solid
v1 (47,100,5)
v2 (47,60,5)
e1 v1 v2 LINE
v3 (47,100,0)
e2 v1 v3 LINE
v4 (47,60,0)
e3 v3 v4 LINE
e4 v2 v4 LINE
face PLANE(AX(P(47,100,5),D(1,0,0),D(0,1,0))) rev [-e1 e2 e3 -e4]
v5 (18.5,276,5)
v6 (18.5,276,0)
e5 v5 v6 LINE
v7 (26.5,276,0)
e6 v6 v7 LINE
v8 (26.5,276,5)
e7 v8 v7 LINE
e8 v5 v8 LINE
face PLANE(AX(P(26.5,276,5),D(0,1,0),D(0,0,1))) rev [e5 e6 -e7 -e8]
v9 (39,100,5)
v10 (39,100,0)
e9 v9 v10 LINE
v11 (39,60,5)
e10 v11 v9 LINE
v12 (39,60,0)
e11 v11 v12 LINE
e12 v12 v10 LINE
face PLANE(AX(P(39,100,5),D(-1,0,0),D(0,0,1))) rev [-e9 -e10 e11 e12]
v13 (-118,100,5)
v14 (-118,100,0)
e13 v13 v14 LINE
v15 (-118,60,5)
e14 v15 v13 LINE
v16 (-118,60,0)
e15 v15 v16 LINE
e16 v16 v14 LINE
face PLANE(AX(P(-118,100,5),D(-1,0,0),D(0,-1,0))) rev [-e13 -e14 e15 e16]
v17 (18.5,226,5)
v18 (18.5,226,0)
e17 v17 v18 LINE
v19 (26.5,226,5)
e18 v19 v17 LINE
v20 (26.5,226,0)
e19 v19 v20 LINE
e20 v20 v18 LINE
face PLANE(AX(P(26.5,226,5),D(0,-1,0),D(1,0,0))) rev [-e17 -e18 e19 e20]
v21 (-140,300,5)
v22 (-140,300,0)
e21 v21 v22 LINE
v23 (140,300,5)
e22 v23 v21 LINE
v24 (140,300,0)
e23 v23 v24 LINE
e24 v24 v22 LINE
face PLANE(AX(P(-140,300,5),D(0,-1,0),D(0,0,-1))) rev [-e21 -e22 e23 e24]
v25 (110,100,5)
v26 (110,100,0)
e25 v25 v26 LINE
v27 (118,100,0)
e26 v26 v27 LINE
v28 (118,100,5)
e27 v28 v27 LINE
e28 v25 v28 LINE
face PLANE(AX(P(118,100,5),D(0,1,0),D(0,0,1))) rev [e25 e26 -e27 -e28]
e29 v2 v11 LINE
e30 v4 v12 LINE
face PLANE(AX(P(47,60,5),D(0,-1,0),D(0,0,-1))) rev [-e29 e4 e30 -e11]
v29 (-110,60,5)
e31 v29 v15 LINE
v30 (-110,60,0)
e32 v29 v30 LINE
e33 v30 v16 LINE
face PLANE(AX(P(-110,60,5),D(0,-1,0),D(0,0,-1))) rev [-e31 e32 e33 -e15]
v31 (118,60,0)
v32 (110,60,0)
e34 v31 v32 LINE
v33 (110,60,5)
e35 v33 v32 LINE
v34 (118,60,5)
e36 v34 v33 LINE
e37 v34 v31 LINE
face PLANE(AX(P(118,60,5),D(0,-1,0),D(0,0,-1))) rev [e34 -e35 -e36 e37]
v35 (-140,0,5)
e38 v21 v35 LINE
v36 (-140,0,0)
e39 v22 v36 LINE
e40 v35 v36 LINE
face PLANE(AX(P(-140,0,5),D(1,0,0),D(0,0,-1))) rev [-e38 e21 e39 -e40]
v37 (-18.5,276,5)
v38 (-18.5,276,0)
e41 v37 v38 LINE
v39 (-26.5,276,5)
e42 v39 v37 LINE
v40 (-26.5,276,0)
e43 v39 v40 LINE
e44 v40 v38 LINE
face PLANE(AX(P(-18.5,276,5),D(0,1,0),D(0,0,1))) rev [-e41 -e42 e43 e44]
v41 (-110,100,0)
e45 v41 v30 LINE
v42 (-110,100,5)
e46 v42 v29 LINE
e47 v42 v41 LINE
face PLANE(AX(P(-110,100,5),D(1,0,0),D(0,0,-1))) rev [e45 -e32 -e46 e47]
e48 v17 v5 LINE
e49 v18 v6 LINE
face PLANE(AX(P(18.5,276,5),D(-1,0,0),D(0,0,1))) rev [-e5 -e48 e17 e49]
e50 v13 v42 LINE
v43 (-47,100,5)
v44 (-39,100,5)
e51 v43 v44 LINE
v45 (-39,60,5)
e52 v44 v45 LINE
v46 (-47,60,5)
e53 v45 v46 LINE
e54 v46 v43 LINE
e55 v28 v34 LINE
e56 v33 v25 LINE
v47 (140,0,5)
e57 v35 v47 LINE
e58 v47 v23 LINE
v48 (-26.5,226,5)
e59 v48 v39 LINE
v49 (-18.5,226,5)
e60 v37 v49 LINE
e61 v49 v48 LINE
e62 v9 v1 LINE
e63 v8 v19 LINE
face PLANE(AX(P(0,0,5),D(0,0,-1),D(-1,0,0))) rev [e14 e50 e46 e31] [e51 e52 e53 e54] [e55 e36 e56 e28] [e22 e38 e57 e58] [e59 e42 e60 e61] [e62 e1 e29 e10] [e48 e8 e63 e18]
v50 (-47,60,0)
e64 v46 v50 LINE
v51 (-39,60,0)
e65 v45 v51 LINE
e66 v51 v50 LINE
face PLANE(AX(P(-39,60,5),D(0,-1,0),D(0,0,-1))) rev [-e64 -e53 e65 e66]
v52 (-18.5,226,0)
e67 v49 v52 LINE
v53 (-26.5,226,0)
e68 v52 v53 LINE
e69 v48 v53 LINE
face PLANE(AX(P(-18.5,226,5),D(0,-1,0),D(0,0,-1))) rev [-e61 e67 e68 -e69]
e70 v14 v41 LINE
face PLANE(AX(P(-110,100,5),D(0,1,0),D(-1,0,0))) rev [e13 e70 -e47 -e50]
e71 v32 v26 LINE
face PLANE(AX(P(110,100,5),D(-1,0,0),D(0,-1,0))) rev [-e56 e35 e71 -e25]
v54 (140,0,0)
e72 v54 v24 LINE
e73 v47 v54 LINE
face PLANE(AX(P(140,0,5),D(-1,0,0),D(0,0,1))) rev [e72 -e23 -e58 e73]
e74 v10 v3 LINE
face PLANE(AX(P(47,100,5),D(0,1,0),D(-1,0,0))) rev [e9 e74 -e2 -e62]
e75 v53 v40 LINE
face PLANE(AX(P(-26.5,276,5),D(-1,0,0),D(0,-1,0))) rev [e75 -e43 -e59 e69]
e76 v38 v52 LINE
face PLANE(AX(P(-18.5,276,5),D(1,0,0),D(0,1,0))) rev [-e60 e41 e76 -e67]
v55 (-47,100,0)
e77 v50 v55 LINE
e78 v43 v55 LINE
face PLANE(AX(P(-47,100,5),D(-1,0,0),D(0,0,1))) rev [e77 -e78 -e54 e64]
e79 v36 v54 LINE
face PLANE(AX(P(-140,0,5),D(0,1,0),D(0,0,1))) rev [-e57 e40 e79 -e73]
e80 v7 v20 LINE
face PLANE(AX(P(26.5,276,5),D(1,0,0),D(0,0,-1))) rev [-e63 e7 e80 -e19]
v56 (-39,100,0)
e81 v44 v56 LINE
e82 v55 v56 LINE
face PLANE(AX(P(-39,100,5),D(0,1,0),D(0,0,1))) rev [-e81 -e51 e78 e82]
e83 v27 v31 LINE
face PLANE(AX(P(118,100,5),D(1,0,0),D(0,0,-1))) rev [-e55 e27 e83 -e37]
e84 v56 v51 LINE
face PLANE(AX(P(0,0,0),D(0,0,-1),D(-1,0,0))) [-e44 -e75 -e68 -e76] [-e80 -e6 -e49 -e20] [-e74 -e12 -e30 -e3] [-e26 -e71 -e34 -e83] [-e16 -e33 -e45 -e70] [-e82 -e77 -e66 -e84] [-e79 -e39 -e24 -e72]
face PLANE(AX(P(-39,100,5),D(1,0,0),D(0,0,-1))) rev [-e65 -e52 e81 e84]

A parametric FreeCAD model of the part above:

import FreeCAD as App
import Part
import Sketcher

V = App.Vector

doc = App.newDocument("Part")
body = doc.addObject("PartDesign::Body", "Body")

# Sketch on XY plane
sketch1 = body.newObject("Sketcher::SketchObject", "Sketch")
sketch1.AttachmentSupport = (doc.getObject("XY_Plane"), [""])
sketch1.MapMode = "FlatFace"
sketch1.addGeometry(Part.LineSegment(V(-140, 300, 0), V(-140, 0, 0)), False)
sketch1.addGeometry(Part.LineSegment(V(-140, 0, 0), V(140, 0, 0)), False)
sketch1.addGeometry(Part.LineSegment(V(140, 0, 0), V(140, 300, 0)), False)
sketch1.addGeometry(Part.LineSegment(V(140, 300, 0), V(-140, 300, 0)), False)
sketch1.addConstraint(Sketcher.Constraint("Coincident", 0, 2, 1, 1))
sketch1.addConstraint(Sketcher.Constraint("Coincident", 1, 2, 2, 1))
sketch1.addConstraint(Sketcher.Constraint("Coincident", 2, 2, 3, 1))
sketch1.addConstraint(Sketcher.Constraint("Coincident", 3, 2, 0, 1))
sketch1.addConstraint(Sketcher.Constraint("Vertical", 0))
sketch1.addConstraint(Sketcher.Constraint("Horizontal", 1))
sketch1.addConstraint(Sketcher.Constraint("Vertical", 2))
sketch1.addConstraint(Sketcher.Constraint("Horizontal", 3))
sketch1.addConstraint(Sketcher.Constraint("Symmetric", 0, 2, 1, 2, -1, 1))
sketch1.addConstraint(Sketcher.Constraint("DistanceX", 1, 1, 1, 2, 280.0))
sketch1.addConstraint(Sketcher.Constraint("DistanceY", 0, 2, 0, 1, 300.0))
pad1 = body.newObject("PartDesign::Pad", "Pad")
pad1.Profile = sketch1
pad1.Length = 5

# Sketch on XY plane
sketch2 = body.newObject("Sketcher::SketchObject", "Sketch001")
sketch2.AttachmentSupport = (doc.getObject("XY_Plane"), [""])
sketch2.MapMode = "FlatFace"
sketch2.addGeometry(Part.LineSegment(V(118, 100, 0), V(118, 60, 0)), False)
sketch2.addGeometry(Part.LineSegment(V(118, 60, 0), V(110, 60, 0)), False)
sketch2.addGeometry(Part.LineSegment(V(110, 60, 0), V(110, 100, 0)), False)
sketch2.addGeometry(Part.LineSegment(V(110, 100, 0), V(118, 100, 0)), False)
sketch2.addGeometry(Part.LineSegment(V(47, 100, 0), V(47, 60, 0)), False)
sketch2.addGeometry(Part.LineSegment(V(47, 60, 0), V(39, 60, 0)), False)
sketch2.addGeometry(Part.LineSegment(V(39, 60, 0), V(39, 100, 0)), False)
sketch2.addGeometry(Part.LineSegment(V(39, 100, 0), V(47, 100, 0)), False)
sketch2.addGeometry(Part.LineSegment(V(-39, 100, 0), V(-39, 60, 0)), False)
sketch2.addGeometry(Part.LineSegment(V(-39, 60, 0), V(-47, 60, 0)), False)
sketch2.addGeometry(Part.LineSegment(V(-47, 60, 0), V(-47, 100, 0)), False)
sketch2.addGeometry(Part.LineSegment(V(-47, 100, 0), V(-39, 100, 0)), False)
sketch2.addGeometry(Part.LineSegment(V(-110, 100, 0), V(-110, 60, 0)), False)
sketch2.addGeometry(Part.LineSegment(V(-110, 60, 0), V(-118, 60, 0)), False)
sketch2.addGeometry(Part.LineSegment(V(-118, 60, 0), V(-118, 100, 0)), False)
sketch2.addGeometry(Part.LineSegment(V(-118, 100, 0), V(-110, 100, 0)), False)
sketch2.addGeometry(Part.LineSegment(V(26, 276, 0), V(26, 226, 0)), False)
sketch2.addGeometry(Part.LineSegment(V(26, 226, 0), V(18, 226, 0)), False)
sketch2.addGeometry(Part.LineSegment(V(18, 226, 0), V(18, 276, 0)), False)
sketch2.addGeometry(Part.LineSegment(V(18, 276, 0), V(26, 276, 0)), False)
sketch2.addGeometry(Part.LineSegment(V(-18, 276, 0), V(-18, 226, 0)), False)
sketch2.addGeometry(Part.LineSegment(V(-18, 226, 0), V(-26, 226, 0)), False)
sketch2.addGeometry(Part.LineSegment(V(-26, 226, 0), V(-26, 276, 0)), False)
sketch2.addGeometry(Part.LineSegment(V(-26, 276, 0), V(-18, 276, 0)), False)
sketch2.addConstraint(Sketcher.Constraint("Coincident", 0, 2, 1, 1))
sketch2.addConstraint(Sketcher.Constraint("Coincident", 1, 2, 2, 1))
sketch2.addConstraint(Sketcher.Constraint("Coincident", 2, 2, 3, 1))
sketch2.addConstraint(Sketcher.Constraint("Coincident", 3, 2, 0, 1))
sketch2.addConstraint(Sketcher.Constraint("Coincident", 4, 2, 5, 1))
sketch2.addConstraint(Sketcher.Constraint("Coincident", 5, 2, 6, 1))
sketch2.addConstraint(Sketcher.Constraint("Coincident", 6, 2, 7, 1))
sketch2.addConstraint(Sketcher.Constraint("Coincident", 7, 2, 4, 1))
sketch2.addConstraint(Sketcher.Constraint("Coincident", 8, 2, 9, 1))
sketch2.addConstraint(Sketcher.Constraint("Coincident", 9, 2, 10, 1))
sketch2.addConstraint(Sketcher.Constraint("Coincident", 10, 2, 11, 1))
sketch2.addConstraint(Sketcher.Constraint("Coincident", 11, 2, 8, 1))
sketch2.addConstraint(Sketcher.Constraint("Coincident", 12, 2, 13, 1))
sketch2.addConstraint(Sketcher.Constraint("Coincident", 13, 2, 14, 1))
sketch2.addConstraint(Sketcher.Constraint("Coincident", 14, 2, 15, 1))
sketch2.addConstraint(Sketcher.Constraint("Coincident", 15, 2, 12, 1))
sketch2.addConstraint(Sketcher.Constraint("Coincident", 16, 2, 17, 1))
sketch2.addConstraint(Sketcher.Constraint("Coincident", 17, 2, 18, 1))
sketch2.addConstraint(Sketcher.Constraint("Coincident", 18, 2, 19, 1))
sketch2.addConstraint(Sketcher.Constraint("Coincident", 19, 2, 16, 1))
sketch2.addConstraint(Sketcher.Constraint("Coincident", 20, 2, 21, 1))
sketch2.addConstraint(Sketcher.Constraint("Coincident", 21, 2, 22, 1))
sketch2.addConstraint(Sketcher.Constraint("Coincident", 22, 2, 23, 1))
sketch2.addConstraint(Sketcher.Constraint("Coincident", 23, 2, 20, 1))
sketch2.addConstraint(Sketcher.Constraint("Vertical", 0))
sketch2.addConstraint(Sketcher.Constraint("Horizontal", 1))
sketch2.addConstraint(Sketcher.Constraint("Vertical", 2))
sketch2.addConstraint(Sketcher.Constraint("Horizontal", 3))
sketch2.addConstraint(Sketcher.Constraint("Vertical", 4))
sketch2.addConstraint(Sketcher.Constraint("Horizontal", 5))
sketch2.addConstraint(Sketcher.Constraint("Vertical", 6))
sketch2.addConstraint(Sketcher.Constraint("Horizontal", 7))
sketch2.addConstraint(Sketcher.Constraint("Vertical", 8))
sketch2.addConstraint(Sketcher.Constraint("Horizontal", 9))
sketch2.addConstraint(Sketcher.Constraint("Vertical", 10))
sketch2.addConstraint(Sketcher.Constraint("Horizontal", 11))
sketch2.addConstraint(Sketcher.Constraint("Vertical", 12))
sketch2.addConstraint(Sketcher.Constraint("Horizontal", 13))
sketch2.addConstraint(Sketcher.Constraint("Vertical", 14))
sketch2.addConstraint(Sketcher.Constraint("Horizontal", 15))
sketch2.addConstraint(Sketcher.Constraint("Vertical", 16))
sketch2.addConstraint(Sketcher.Constraint("Horizontal", 17))
sketch2.addConstraint(Sketcher.Constraint("Vertical", 18))
sketch2.addConstraint(Sketcher.Constraint("Horizontal", 19))
sketch2.addConstraint(Sketcher.Constraint("Vertical", 20))
sketch2.addConstraint(Sketcher.Constraint("Horizontal", 21))
sketch2.addConstraint(Sketcher.Constraint("Vertical", 22))
sketch2.addConstraint(Sketcher.Constraint("Horizontal", 23))
sketch2.addConstraint(Sketcher.Constraint("Symmetric", 5, 2, 8, 2, -2))
sketch2.addConstraint(Sketcher.Constraint("Symmetric", 7, 2, 10, 2, -2))
sketch2.addConstraint(Sketcher.Constraint("Symmetric", 1, 2, 12, 2, -2))
sketch2.addConstraint(Sketcher.Constraint("Symmetric", 3, 2, 14, 2, -2))
sketch2.addConstraint(Sketcher.Constraint("Symmetric", 17, 2, 20, 2, -2))
sketch2.addConstraint(Sketcher.Constraint("Symmetric", 19, 2, 22, 2, -2))
sketch2.addConstraint(Sketcher.Constraint("Horizontal", 1, 2, 4, 2))
sketch2.addConstraint(Sketcher.Constraint("Horizontal", 3, 2, 6, 2))
sketch2.addConstraint(Sketcher.Constraint("Equal", 3, 5))
sketch2.addConstraint(Sketcher.Constraint("Equal", 15, 17))
sketch2.addConstraint(Sketcher.Constraint("DistanceX", 1, 2, 1, 1, 8.0))
sketch2.addConstraint(Sketcher.Constraint("DistanceY", 0, 2, 0, 1, 40.0))
sketch2.addConstraint(Sketcher.Constraint("DistanceY", 16, 2, 16, 1, 50.0))
sketch2.addConstraint(Sketcher.Constraint("DistanceX", -1, 1, 0, 2, 118.0))
sketch2.addConstraint(Sketcher.Constraint("DistanceY", -1, 1, 0, 2, 60.0))
sketch2.addConstraint(Sketcher.Constraint("DistanceX", -1, 1, 4, 2, 47.0))
sketch2.addConstraint(Sketcher.Constraint("DistanceY", -1, 1, 16, 2, 226.0))
sketch2.addConstraint(Sketcher.Constraint("DistanceX", 20, 2, 17, 2, 37.0))
pocket1 = body.newObject("PartDesign::Pocket", "Pocket")
pocket1.Profile = sketch2
pocket1.Type = "ThroughAll"
pocket1.Reversed = True

doc.recompute()
